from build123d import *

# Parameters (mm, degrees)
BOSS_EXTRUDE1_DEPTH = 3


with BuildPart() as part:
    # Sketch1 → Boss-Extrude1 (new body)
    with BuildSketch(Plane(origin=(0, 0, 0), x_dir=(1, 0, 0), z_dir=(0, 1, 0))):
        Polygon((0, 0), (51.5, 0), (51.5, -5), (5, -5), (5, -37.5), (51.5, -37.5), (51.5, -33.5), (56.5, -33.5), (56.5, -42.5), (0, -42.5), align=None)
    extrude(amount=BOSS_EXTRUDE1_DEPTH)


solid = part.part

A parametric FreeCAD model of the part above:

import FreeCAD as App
import Part
import Sketcher
from FreeCAD import Vector

doc = App.newDocument("Part")
params = doc.addObject("Spreadsheet::Sheet", "Params")
for row, (alias, value) in enumerate([
    ("sketch1_width", "5 mm"),
    ("sketch1_height", "9 mm"),
    ("sketch1_height2", "4 mm"),
    ("sketch1_width2", "51.5 mm"),
    ("sketch1_width3", "46.5 mm"),
    ("pad1_length", "3 mm"),
], start=1):
    params.set(f"A{row}", alias)
    params.set(f"B{row}", "=" + value)
    params.setAlias(f"B{row}", alias)

body = doc.addObject("PartDesign::Body", "Body")

# Sketch on XZ plane
sketch1 = body.newObject("Sketcher::SketchObject", "Sketch")
sketch1.AttachmentSupport = (doc.getObject("XZ_Plane"), [""])
sketch1.MapMode = "FlatFace"
sketch1.addGeometry(Part.LineSegment(Vector(51.5, 0, 0), Vector(0, 0, 0)), False)
sketch1.addGeometry(Part.LineSegment(Vector(0, 0, 0), Vector(0, 42.5, 0)), False)
sketch1.addGeometry(Part.LineSegment(Vector(0, 42.5, 0), Vector(56.5, 42.5, 0)), False)
sketch1.addGeometry(Part.LineSegment(Vector(56.5, 42.5, 0), Vector(56.5, 33.5, 0)), False)
sketch1.addGeometry(Part.LineSegment(Vector(56.5, 33.5, 0), Vector(51.5, 33.5, 0)), False)
sketch1.addGeometry(Part.LineSegment(Vector(51.5, 33.5, 0), Vector(51.5, 37.5, 0)), False)
sketch1.addGeometry(Part.LineSegment(Vector(51.5, 37.5, 0), Vector(5, 37.5, 0)), False)
sketch1.addGeometry(Part.LineSegment(Vector(5, 37.5, 0), Vector(5, 5, 0)), False)
sketch1.addGeometry(Part.LineSegment(Vector(5, 5, 0), Vector(51.5, 5, 0)), False)
sketch1.addGeometry(Part.LineSegment(Vector(51.5, 5, 0), Vector(51.5, 0, 0)), False)
sketch1.addConstraint(Sketcher.Constraint("Coincident", 0, 2, 1, 1))
sketch1.addConstraint(Sketcher.Constraint("Coincident", 1, 2, 2, 1))
sketch1.addConstraint(Sketcher.Constraint("Coincident", 2, 2, 3, 1))
sketch1.addConstraint(Sketcher.Constraint("Coincident", 3, 2, 4, 1))
sketch1.addConstraint(Sketcher.Constraint("Coincident", 4, 2, 5, 1))
sketch1.addConstraint(Sketcher.Constraint("Coincident", 5, 2, 6, 1))
sketch1.addConstraint(Sketcher.Constraint("Coincident", 6, 2, 7, 1))
sketch1.addConstraint(Sketcher.Constraint("Coincident", 7, 2, 8, 1))
sketch1.addConstraint(Sketcher.Constraint("Coincident", 8, 2, 9, 1))
sketch1.addConstraint(Sketcher.Constraint("Coincident", 9, 2, 0, 1))
sketch1.addConstraint(Sketcher.Constraint("Horizontal", 0))
sketch1.addConstraint(Sketcher.Constraint("Vertical", 1))
sketch1.addConstraint(Sketcher.Constraint("Horizontal", 2))
sketch1.addConstraint(Sketcher.Constraint("Vertical", 3))
sketch1.addConstraint(Sketcher.Constraint("Horizontal", 4))
sketch1.addConstraint(Sketcher.Constraint("Vertical", 5))
sketch1.addConstraint(Sketcher.Constraint("Horizontal", 6))
sketch1.addConstraint(Sketcher.Constraint("Vertical", 7))
sketch1.addConstraint(Sketcher.Constraint("Horizontal", 8))
sketch1.addConstraint(Sketcher.Constraint("Vertical", 9))
sketch1.addConstraint(Sketcher.Constraint("Coincident", 0, 2, -1, 1))
sketch1.addConstraint(Sketcher.Constraint("Vertical", 5, 2, 8, 2))
sketch1.addConstraint(Sketcher.Constraint("Equal", 4, 9))
sketch1.addConstraint(Sketcher.Constraint("DistanceX", 4, 2, 4, 1, 5.0))
sketch1.addConstraint(Sketcher.Constraint("DistanceY", 3, 2, 3, 1, 9.0))
sketch1.addConstraint(Sketcher.Constraint("DistanceY", 5, 1, 5, 2, 4.0))
sketch1.addConstraint(Sketcher.Constraint("DistanceX", 0, 2, 0, 1, 51.5))
sketch1.addConstraint(Sketcher.Constraint("DistanceX", 6, 2, 6, 1, 46.5))
sketch1.addConstraint(Sketcher.Constraint("DistanceY", 1, 1, 1, 2, 42.5))
sketch1.setExpression("Constraints[23]", "Params.sketch1_width")
sketch1.setExpression("Constraints[24]", "Params.sketch1_height")
sketch1.setExpression("Constraints[25]", "Params.sketch1_height2")
sketch1.setExpression("Constraints[26]", "Params.sketch1_width2")
sketch1.setExpression("Constraints[27]", "Params.sketch1_width3")
pad1 = body.newObject("PartDesign::Pad", "Pad")
pad1.Profile = sketch1
pad1.setExpression("Length", "Params.pad1_length")
pad1.Reversed = True

doc.recompute()
